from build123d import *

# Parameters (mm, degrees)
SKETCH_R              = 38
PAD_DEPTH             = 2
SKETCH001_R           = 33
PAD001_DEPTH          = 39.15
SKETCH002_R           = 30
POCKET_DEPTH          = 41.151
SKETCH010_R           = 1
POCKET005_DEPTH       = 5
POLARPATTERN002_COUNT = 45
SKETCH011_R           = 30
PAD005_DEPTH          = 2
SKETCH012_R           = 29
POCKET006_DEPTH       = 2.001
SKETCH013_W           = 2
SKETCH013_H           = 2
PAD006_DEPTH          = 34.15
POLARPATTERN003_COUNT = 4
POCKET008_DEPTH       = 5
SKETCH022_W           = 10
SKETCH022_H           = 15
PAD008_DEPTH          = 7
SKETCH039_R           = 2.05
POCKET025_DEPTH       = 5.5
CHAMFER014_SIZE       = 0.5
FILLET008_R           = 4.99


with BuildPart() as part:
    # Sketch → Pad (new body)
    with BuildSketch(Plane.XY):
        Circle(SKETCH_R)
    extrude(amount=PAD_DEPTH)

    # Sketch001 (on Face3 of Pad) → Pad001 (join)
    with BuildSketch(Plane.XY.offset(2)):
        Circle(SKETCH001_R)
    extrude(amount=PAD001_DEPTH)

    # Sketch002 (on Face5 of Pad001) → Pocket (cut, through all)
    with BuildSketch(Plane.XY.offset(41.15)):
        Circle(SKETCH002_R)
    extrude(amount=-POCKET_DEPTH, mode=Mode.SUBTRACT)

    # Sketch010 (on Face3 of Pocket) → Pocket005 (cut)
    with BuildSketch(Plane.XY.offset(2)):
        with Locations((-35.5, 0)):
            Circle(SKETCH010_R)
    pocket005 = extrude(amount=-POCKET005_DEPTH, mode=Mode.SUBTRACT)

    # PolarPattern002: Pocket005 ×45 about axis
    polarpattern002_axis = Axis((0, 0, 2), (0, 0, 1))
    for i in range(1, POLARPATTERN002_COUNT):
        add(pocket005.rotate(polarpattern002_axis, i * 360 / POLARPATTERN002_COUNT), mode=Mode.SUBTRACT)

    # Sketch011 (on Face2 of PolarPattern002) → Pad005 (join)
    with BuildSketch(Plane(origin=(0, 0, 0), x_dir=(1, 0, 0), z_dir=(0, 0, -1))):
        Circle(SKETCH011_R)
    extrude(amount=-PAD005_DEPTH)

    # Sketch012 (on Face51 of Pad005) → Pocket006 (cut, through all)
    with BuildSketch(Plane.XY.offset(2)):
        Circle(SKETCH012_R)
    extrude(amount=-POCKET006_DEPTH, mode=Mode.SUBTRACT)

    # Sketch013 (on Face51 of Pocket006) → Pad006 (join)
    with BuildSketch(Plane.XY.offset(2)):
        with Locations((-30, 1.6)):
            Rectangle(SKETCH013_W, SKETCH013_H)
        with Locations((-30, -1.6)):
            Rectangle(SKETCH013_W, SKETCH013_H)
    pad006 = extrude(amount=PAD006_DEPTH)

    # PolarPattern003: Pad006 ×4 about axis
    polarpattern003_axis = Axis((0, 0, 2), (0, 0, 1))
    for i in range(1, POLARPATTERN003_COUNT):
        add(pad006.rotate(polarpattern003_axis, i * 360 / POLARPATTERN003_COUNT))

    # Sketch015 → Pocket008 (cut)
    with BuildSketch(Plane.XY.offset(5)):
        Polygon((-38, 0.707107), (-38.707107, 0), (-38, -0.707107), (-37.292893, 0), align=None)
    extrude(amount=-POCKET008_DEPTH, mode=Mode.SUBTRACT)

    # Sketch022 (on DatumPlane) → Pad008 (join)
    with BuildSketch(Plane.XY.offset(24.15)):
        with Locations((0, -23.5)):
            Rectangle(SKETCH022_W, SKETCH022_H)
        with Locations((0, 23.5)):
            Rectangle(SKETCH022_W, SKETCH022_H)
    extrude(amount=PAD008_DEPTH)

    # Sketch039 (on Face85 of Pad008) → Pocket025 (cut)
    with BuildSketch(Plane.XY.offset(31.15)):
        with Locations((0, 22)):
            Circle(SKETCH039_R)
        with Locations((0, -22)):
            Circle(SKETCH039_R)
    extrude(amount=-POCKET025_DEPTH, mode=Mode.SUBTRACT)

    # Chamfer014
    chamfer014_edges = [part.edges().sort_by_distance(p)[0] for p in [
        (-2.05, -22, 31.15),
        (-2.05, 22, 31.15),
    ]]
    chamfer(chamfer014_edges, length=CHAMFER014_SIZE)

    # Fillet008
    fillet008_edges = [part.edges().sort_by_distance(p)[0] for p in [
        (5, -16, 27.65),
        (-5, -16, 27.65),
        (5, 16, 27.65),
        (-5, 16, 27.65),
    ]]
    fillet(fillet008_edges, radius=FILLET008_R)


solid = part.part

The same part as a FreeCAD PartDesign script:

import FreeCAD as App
import Part
import Sketcher
Q = App.Units.Quantity


def edges_at(feature, points):
    """Names of the edges that pass closest to the given points."""
    edges = feature.Shape.Edges
    near = lambda p: min(range(len(edges)), key=lambda i: edges[i].distToShape(Part.Vertex(*p))[0])
    return sorted({f"Edge{near(p) + 1}" for p in points})


def add_polygon(sketch, points):
    """Adds a closed chain of lines whose ends are joined by coincident constraints."""
    first, n = sketch.GeometryCount, len(points)
    for a, b in zip(points, points[1:] + points[:1]):
        sketch.addGeometry(Part.LineSegment(App.Vector(*a, 0), App.Vector(*b, 0)), False)
    for i in range(n):
        sketch.addConstraint(Sketcher.Constraint("Coincident", first + i, 2, first + (i + 1) % n, 1))

doc = App.newDocument("Part")
body = doc.addObject("PartDesign::Body", "Body")

# Sketch on XY plane
sketch1 = body.newObject("Sketcher::SketchObject", "Sketch")
sketch1.AttachmentSupport = (doc.getObject("XY_Plane"), [""])
sketch1.MapMode = "FlatFace"
sketch1.addGeometry(Part.Circle(App.Vector(0, 0, 0), App.Vector(0, 0, 1), 38), False)
sketch1.addConstraint([
    Sketcher.Constraint("Coincident", 0, 3, -1, 1),
    Sketcher.Constraint("Diameter", 0, Q("76 mm")),
])
pad1 = body.newObject("PartDesign::Pad", "Pad")
pad1.Profile = sketch1
pad1.Length = 2

# Sketch on XY plane
sketch2 = body.newObject("Sketcher::SketchObject", "Sketch001")
sketch2.AttachmentSupport = (doc.getObject("XY_Plane"), [""])
sketch2.MapMode = "FlatFace"
sketch2.AttachmentOffset = App.Placement(App.Vector(0, 0, 2), App.Rotation())
sketch2.addGeometry(Part.Circle(App.Vector(0, 0, 0), App.Vector(0, 0, 1), 33), False)
sketch2.addConstraint([
    Sketcher.Constraint("Coincident", 0, 3, -1, 1),
    Sketcher.Constraint("Diameter", 0, Q("66 mm")),
])
pad2 = body.newObject("PartDesign::Pad", "Pad001")
pad2.Profile = sketch2
pad2.Length = 39.15

# Sketch on XY plane
sketch3 = body.newObject("Sketcher::SketchObject", "Sketch002")
sketch3.AttachmentSupport = (doc.getObject("XY_Plane"), [""])
sketch3.MapMode = "FlatFace"
sketch3.AttachmentOffset = App.Placement(App.Vector(0, 0, 41.15), App.Rotation())
sketch3.addGeometry(Part.Circle(App.Vector(0, 0, 0), App.Vector(0, 0, 1), 30), False)
sketch3.addConstraint([
    Sketcher.Constraint("Coincident", 0, 3, -1, 1),
    Sketcher.Constraint("Diameter", 0, Q("60 mm")),
])
pocket1 = body.newObject("PartDesign::Pocket", "Pocket")
pocket1.Profile = sketch3
pocket1.Type = "ThroughAll"

# Sketch on XY plane
sketch4 = body.newObject("Sketcher::SketchObject", "Sketch003")
sketch4.AttachmentSupport = (doc.getObject("XY_Plane"), [""])
sketch4.MapMode = "FlatFace"
sketch4.AttachmentOffset = App.Placement(App.Vector(0, 0, 2), App.Rotation())
sketch4.addGeometry(Part.Circle(App.Vector(-35.5, 0, 0), App.Vector(0, 0, 1), 1), False)
sketch4.addConstraint([
    Sketcher.Constraint("PointOnObject", 0, 3, -1),
    Sketcher.Constraint("Diameter", 0, Q("2 mm")),
    Sketcher.Constraint("DistanceX", 0, 3, -1, 1, Q("35.5 mm")),
])
pocket2 = body.newObject("PartDesign::Pocket", "Pocket001")
pocket2.Profile = sketch4
pocket2.Length = 5
doc.recompute()

polarpattern = body.newObject("PartDesign::PolarPattern", "PolarPattern")
polarpattern.Originals = [pocket2]
polarpattern.Axis = (doc.getObject("Z_Axis"), [""])
polarpattern.Angle = 360
polarpattern.Occurrences = 45
body.Tip = polarpattern

# Sketch on XY plane
sketch5 = body.newObject("Sketcher::SketchObject", "Sketch004")
sketch5.AttachmentSupport = (doc.getObject("XY_Plane"), [""])
sketch5.MapMode = "FlatFace"
sketch5.addGeometry(Part.Circle(App.Vector(0, 0, 0), App.Vector(0, 0, 1), 30), False)
sketch5.addConstraint([
    Sketcher.Constraint("Coincident", 0, 3, -1, 1),
    Sketcher.Constraint("Diameter", 0, Q("60 mm")),
])
pad3 = body.newObject("PartDesign::Pad", "Pad002")
pad3.Profile = sketch5
pad3.Length = 2

# Sketch on XY plane
sketch6 = body.newObject("Sketcher::SketchObject", "Sketch005")
sketch6.AttachmentSupport = (doc.getObject("XY_Plane"), [""])
sketch6.MapMode = "FlatFace"
sketch6.AttachmentOffset = App.Placement(App.Vector(0, 0, 2), App.Rotation())
sketch6.addGeometry(Part.Circle(App.Vector(0, 0, 0), App.Vector(0, 0, 1), 29), False)
sketch6.addConstraint([
    Sketcher.Constraint("Coincident", 0, 3, -1, 1),
    Sketcher.Constraint("Diameter", 0, Q("58 mm")),
])
pocket3 = body.newObject("PartDesign::Pocket", "Pocket002")
pocket3.Profile = sketch6
pocket3.Type = "ThroughAll"

# Sketch on XY plane
sketch7 = body.newObject("Sketcher::SketchObject", "Sketch006")
sketch7.AttachmentSupport = (doc.getObject("XY_Plane"), [""])
sketch7.MapMode = "FlatFace"
sketch7.AttachmentOffset = App.Placement(App.Vector(0, 0, 2), App.Rotation())
add_polygon(sketch7, [(-31, 2.6), (-31, 0.6), (-29, 0.6), (-29, 2.6)])  # lines 0-3
add_polygon(sketch7, [(-31, -0.6), (-31, -2.6), (-29, -2.6), (-29, -0.6)])  # lines 4-7
sketch7.addConstraint([
    Sketcher.Constraint("Vertical", 0),
    Sketcher.Constraint("Horizontal", 1),
    Sketcher.Constraint("Vertical", 2),
    Sketcher.Constraint("Horizontal", 3),
    Sketcher.Constraint("Vertical", 4),
    Sketcher.Constraint("Horizontal", 5),
    Sketcher.Constraint("Vertical", 6),
    Sketcher.Constraint("Horizontal", 7),
    Sketcher.Constraint("Symmetric", 3, 2, 4, 2, -1),
    Sketcher.Constraint("Symmetric", 1, 2, 6, 2, -1),
    Sketcher.Constraint("Equal", 7, 0),
    Sketcher.Constraint("DistanceX", 1, 1, 1, 2, Q("2 mm")),
    Sketcher.Constraint("DistanceX", 0, 2, -1, 1, Q("31 mm")),
    Sketcher.Constraint("DistanceY", -1, 1, 0, 2, Q("0.6 mm")),
])
pad4 = body.newObject("PartDesign::Pad", "Pad003")
pad4.Profile = sketch7
pad4.Length = 34.15
doc.recompute()

polarpattern2 = body.newObject("PartDesign::PolarPattern", "PolarPattern001")
polarpattern2.Originals = [pad4]
polarpattern2.Axis = (doc.getObject("Z_Axis"), [""])
polarpattern2.Angle = 360
polarpattern2.Occurrences = 4
body.Tip = polarpattern2

# Sketch on XY plane
sketch8 = body.newObject("Sketcher::SketchObject", "Sketch007")
sketch8.AttachmentSupport = (doc.getObject("XY_Plane"), [""])
sketch8.MapMode = "FlatFace"
sketch8.AttachmentOffset = App.Placement(App.Vector(0, 0, 5), App.Rotation())
add_polygon(sketch8, [(-38, 0.7), (-38.7, 0), (-38, -0.7), (-37.3, 0)])  # lines 0-3
sketch8.addConstraint([
    Sketcher.Constraint("Symmetric", 1, 2, 3, 2, -1),
    Sketcher.Constraint("PointOnObject", 0, 2, -1),
    Sketcher.Constraint("PointOnObject", 2, 2, -1),
    Sketcher.Constraint("Perpendicular", 0, 1),
    Sketcher.Constraint("Perpendicular", 1, 2),
    Sketcher.Constraint("Distance", 0, Q("1 mm")),
    Sketcher.Constraint("DistanceX", 1, 2, -1, 1, Q("38 mm")),
])
pocket4 = body.newObject("PartDesign::Pocket", "Pocket003")
pocket4.Profile = sketch8
pocket4.Length = 5

# Sketch on XY plane
sketch9 = body.newObject("Sketcher::SketchObject", "Sketch008")
sketch9.AttachmentSupport = (doc.getObject("XY_Plane"), [""])
sketch9.MapMode = "FlatFace"
sketch9.AttachmentOffset = App.Placement(App.Vector(0, 0, 24.15), App.Rotation())
add_polygon(sketch9, [(-5, -16), (-5, -31), (5, -31), (5, -16)])  # lines 0-3
add_polygon(sketch9, [(-5, 31), (-5, 16), (5, 16), (5, 31)])  # lines 4-7
sketch9.addConstraint([
    Sketcher.Constraint("Vertical", 0),
    Sketcher.Constraint("Horizontal", 1),
    Sketcher.Constraint("Vertical", 2),
    Sketcher.Constraint("Horizontal", 3),
    Sketcher.Constraint("Vertical", 4),
    Sketcher.Constraint("Horizontal", 5),
    Sketcher.Constraint("Vertical", 6),
    Sketcher.Constraint("Horizontal", 7),
    Sketcher.Constraint("Symmetric", 2, 2, 4, 2, -1, 1),
    Sketcher.Constraint("Symmetric", 0, 2, 6, 2, -1, 1),
    Sketcher.Constraint("Vertical", 3, 2, 4, 2),
    Sketcher.Constraint("DistanceX", 1, 1, 1, 2, Q("10 mm")),
    Sketcher.Constraint("DistanceY", 0, 2, 0, 1, Q("15 mm")),
    Sketcher.Constraint("DistanceY", 0, 2, -1, 1, Q("31 mm")),
])
pad5 = body.newObject("PartDesign::Pad", "Pad004")
pad5.Profile = sketch9
pad5.Length = 7

# Sketch on XY plane
sketch10 = body.newObject("Sketcher::SketchObject", "Sketch009")
sketch10.AttachmentSupport = (doc.getObject("XY_Plane"), [""])
sketch10.MapMode = "FlatFace"
sketch10.AttachmentOffset = App.Placement(App.Vector(0, 0, 31.15), App.Rotation())
sketch10.addGeometry([
    Part.Circle(App.Vector(0, 22, 0), App.Vector(0, 0, 1), 2),
    Part.Circle(App.Vector(0, -22, 0), App.Vector(0, 0, 1), 2),
], False)
sketch10.addConstraint([
    Sketcher.Constraint("Equal", 0, 1),
    Sketcher.Constraint("Symmetric", 0, 3, 1, 3, -1, 1),
    Sketcher.Constraint("PointOnObject", 0, 3, -2),
    Sketcher.Constraint("Diameter", 0, Q("4.1 mm")),
    Sketcher.Constraint("DistanceY", -1, 1, 0, 3, Q("22 mm")),
])
pocket5 = body.newObject("PartDesign::Pocket", "Pocket004")
pocket5.Profile = sketch10
pocket5.Length = 5.5
doc.recompute()

chamfer = body.newObject("PartDesign::Chamfer", "Chamfer")
chamfer.Base = (pocket5, edges_at(pocket5, [(-2.05, -22, 31.15), (-2.05, 22, 31.15)]))
chamfer.Size = 0.5
doc.recompute()

fillet = body.newObject("PartDesign::Fillet", "Fillet")
fillet.Base = (chamfer, edges_at(chamfer, [
    (5, -16, 27.65),
    (-5, -16, 27.65),
    (5, 16, 27.65),
    (-5, 16, 27.65),
]))
fillet.Radius = 4.99

doc.recompute()
